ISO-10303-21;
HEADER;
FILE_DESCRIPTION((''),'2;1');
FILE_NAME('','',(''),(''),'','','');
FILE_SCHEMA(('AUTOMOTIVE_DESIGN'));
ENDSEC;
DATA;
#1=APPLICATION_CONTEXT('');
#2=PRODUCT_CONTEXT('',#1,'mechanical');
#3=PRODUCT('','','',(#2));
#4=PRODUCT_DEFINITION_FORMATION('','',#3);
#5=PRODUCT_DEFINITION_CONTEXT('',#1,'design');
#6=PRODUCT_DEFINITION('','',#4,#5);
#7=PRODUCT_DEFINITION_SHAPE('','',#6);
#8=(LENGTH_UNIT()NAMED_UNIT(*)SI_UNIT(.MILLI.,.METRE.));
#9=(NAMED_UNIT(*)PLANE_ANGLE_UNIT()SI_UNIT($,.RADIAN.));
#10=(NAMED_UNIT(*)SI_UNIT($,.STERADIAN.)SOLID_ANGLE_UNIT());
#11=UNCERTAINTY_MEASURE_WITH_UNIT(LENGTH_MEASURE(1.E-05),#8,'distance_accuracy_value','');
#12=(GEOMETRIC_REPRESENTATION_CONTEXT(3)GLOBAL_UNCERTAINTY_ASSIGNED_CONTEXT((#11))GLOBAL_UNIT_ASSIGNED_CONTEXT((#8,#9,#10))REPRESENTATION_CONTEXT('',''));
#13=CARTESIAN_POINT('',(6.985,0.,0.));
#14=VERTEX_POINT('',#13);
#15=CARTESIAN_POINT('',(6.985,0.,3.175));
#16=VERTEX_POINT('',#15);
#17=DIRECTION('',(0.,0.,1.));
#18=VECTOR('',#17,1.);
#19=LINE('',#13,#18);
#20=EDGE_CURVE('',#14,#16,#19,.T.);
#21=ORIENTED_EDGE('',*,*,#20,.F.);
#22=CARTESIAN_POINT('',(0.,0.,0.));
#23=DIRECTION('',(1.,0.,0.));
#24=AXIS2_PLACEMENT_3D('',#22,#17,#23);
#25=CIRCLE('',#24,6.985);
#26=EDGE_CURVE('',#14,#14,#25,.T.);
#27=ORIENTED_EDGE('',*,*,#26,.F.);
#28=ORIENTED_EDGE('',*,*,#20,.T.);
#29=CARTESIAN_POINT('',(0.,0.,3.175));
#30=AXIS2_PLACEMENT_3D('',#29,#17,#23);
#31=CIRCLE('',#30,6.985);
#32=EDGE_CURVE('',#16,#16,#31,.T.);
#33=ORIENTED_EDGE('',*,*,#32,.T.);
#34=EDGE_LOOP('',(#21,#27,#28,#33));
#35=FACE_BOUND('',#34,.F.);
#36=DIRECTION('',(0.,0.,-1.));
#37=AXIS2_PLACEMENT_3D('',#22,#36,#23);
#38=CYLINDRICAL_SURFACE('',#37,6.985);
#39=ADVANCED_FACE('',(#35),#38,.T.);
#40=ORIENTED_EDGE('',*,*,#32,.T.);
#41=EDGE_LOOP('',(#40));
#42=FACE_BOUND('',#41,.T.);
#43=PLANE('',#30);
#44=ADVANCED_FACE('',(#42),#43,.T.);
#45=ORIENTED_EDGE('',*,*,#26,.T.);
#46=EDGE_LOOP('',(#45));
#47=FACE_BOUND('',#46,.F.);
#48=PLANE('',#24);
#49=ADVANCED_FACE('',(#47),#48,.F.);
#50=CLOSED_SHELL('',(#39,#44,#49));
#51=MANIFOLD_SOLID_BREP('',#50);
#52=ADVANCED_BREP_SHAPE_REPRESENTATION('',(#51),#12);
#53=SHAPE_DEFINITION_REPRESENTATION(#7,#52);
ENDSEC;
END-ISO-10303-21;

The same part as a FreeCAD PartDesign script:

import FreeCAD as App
import Part
import Sketcher
from FreeCAD import Vector
Q = App.Units.Quantity

doc = App.newDocument("Part")
body = doc.addObject("PartDesign::Body", "Body")

sketch1 = body.newObject("Sketcher::SketchObject", "Sketch")
sketch1.AttachmentSupport = (doc.getObject("XY_Plane"), [""])
sketch1.MapMode = "FlatFace"
sketch1.addGeometry(Part.Circle(Vector(0, 0, 0), Vector(0, 0, 1), 7), False)
sketch1.addConstraint([
    Sketcher.Constraint("Coincident", 0, 3, -1, 1),
    Sketcher.Constraint("Diameter", 0, Q("0.55 in")),
])
pad1 = body.newObject("PartDesign::Pad", "Pad")
pad1.Profile = sketch1
pad1.Length = Q("0.125 in")

doc.recompute()
